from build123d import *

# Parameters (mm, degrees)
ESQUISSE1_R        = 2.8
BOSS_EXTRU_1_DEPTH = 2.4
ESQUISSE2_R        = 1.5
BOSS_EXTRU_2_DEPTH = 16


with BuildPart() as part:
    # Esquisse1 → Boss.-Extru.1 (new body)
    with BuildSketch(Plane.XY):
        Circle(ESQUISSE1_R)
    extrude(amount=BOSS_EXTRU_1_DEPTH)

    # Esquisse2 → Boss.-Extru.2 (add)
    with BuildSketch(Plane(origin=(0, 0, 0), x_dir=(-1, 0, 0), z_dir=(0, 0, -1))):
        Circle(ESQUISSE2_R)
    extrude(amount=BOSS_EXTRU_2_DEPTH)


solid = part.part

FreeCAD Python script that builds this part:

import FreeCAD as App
import Part
import Sketcher
from FreeCAD import Vector
Q = App.Units.Quantity

doc = App.newDocument("Part")
body = doc.addObject("PartDesign::Body", "Body")

sketch1 = body.newObject("Sketcher::SketchObject", "Sketch")
sketch1.AttachmentSupport = (doc.getObject("XY_Plane"), [""])
sketch1.MapMode = "FlatFace"
sketch1.addGeometry(Part.Circle(Vector(0, 0, 0), Vector(0, 0, 1), 2.8), False)
sketch1.addConstraint(Sketcher.Constraint("Coincident", 0, 3, -1, 1))
sketch1.addConstraint(Sketcher.Constraint("Diameter", 0, Q("5.6 mm")))
pad1 = body.newObject("PartDesign::Pad", "Pad")
pad1.Profile = sketch1
pad1.Length = 2.4

sketch2 = body.newObject("Sketcher::SketchObject", "Sketch001")
sketch2.AttachmentSupport = (doc.getObject("XY_Plane"), [""])
sketch2.MapMode = "FlatFace"
sketch2.addGeometry(Part.Circle(Vector(0, 0, 0), Vector(0, 0, 1), 1.5), False)
sketch2.addConstraint(Sketcher.Constraint("Coincident", 0, 3, -1, 1))
sketch2.addConstraint(Sketcher.Constraint("Diameter", 0, Q("3 mm")))
pad2 = body.newObject("PartDesign::Pad", "Pad001")
pad2.Profile = sketch2
pad2.Length = 16
pad2.Reversed = True

doc.recompute()
